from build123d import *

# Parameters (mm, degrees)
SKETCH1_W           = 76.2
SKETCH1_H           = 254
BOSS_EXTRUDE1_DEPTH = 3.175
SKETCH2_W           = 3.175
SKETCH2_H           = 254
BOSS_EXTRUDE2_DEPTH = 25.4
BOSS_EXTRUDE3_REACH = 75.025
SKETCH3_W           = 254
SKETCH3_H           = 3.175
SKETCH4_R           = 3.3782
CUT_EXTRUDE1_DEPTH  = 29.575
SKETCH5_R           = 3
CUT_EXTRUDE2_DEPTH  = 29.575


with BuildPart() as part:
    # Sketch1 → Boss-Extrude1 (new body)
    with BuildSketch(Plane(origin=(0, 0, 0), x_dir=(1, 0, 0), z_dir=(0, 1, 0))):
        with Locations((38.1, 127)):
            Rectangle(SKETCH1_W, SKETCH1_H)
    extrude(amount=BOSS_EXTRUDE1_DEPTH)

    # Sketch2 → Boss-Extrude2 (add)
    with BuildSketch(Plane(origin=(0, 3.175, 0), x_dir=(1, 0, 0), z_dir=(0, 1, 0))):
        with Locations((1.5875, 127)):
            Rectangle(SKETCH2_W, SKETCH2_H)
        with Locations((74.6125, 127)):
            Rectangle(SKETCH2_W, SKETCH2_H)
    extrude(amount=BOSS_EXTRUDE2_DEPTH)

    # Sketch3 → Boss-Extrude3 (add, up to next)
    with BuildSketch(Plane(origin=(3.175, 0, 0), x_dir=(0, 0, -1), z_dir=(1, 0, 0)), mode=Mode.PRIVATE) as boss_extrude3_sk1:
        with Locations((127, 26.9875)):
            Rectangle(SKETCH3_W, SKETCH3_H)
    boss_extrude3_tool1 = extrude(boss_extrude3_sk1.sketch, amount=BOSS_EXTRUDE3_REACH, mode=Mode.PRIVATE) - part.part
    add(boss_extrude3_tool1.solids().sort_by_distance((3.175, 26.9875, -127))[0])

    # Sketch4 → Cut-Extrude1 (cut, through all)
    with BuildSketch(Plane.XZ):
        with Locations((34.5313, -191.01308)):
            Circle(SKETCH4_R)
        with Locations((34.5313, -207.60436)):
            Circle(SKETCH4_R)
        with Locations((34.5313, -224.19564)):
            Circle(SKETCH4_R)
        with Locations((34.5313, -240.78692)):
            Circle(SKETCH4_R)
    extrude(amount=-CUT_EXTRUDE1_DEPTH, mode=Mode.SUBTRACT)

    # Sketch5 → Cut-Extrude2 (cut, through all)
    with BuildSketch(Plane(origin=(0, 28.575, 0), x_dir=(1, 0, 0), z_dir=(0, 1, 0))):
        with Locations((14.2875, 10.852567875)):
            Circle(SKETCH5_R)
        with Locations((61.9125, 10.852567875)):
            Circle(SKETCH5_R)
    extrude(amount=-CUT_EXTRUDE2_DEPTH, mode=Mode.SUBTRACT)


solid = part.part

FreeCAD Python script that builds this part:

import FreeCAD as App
import Part
import Sketcher
Q = App.Units.Quantity

doc = App.newDocument("Part")
body = doc.addObject("PartDesign::Body", "Body")

sketch1 = body.newObject("Sketcher::SketchObject", "Sketch")
sketch1.AttachmentSupport = (doc.getObject("XZ_Plane"), [""])
sketch1.MapMode = "FlatFace"
sketch1.addGeometry([
    Part.LineSegment(App.Vector(0, -254, 0), App.Vector(0, 0, 0)),
    Part.LineSegment(App.Vector(0, 0, 0), App.Vector(76, 0, 0)),
    Part.LineSegment(App.Vector(76, 0, 0), App.Vector(76, -254, 0)),
    Part.LineSegment(App.Vector(76, -254, 0), App.Vector(0, -254, 0)),
], False)
sketch1.addConstraint([
    Sketcher.Constraint("Coincident", 0, 2, 1, 1),
    Sketcher.Constraint("Coincident", 1, 2, 2, 1),
    Sketcher.Constraint("Coincident", 2, 2, 3, 1),
    Sketcher.Constraint("Coincident", 3, 2, 0, 1),
    Sketcher.Constraint("Vertical", 0),
    Sketcher.Constraint("Horizontal", 1),
    Sketcher.Constraint("Vertical", 2),
    Sketcher.Constraint("Horizontal", 3),
    Sketcher.Constraint("Coincident", 0, 2, -1, 1),
    Sketcher.Constraint("DistanceX", 1, 1, 1, 2, Q("3 in")),
    Sketcher.Constraint("DistanceY", 0, 1, 0, 2, Q("10 in")),
])
pad1 = body.newObject("PartDesign::Pad", "Pad")
pad1.Profile = sketch1
pad1.Length = Q("0.125 in")
pad1.Reversed = True

sketch2 = body.newObject("Sketcher::SketchObject", "Sketch001")
sketch2.AttachmentSupport = (doc.getObject("XZ_Plane"), [""])
sketch2.MapMode = "FlatFace"
sketch2.AttachmentOffset = App.Placement(App.Vector(0, 0, -0.125 * 25.4), App.Rotation())
sketch2.addGeometry([
    Part.LineSegment(App.Vector(0, -254, 0), App.Vector(0, 0, 0)),
    Part.LineSegment(App.Vector(0, 0, 0), App.Vector(3.2, 0, 0)),
    Part.LineSegment(App.Vector(3.2, 0, 0), App.Vector(3.2, -254, 0)),
    Part.LineSegment(App.Vector(3.2, -254, 0), App.Vector(0, -254, 0)),
    Part.LineSegment(App.Vector(73, -254, 0), App.Vector(73, 0, 0)),
    Part.LineSegment(App.Vector(73, 0, 0), App.Vector(76.2, 0, 0)),
    Part.LineSegment(App.Vector(76.2, 0, 0), App.Vector(76.2, -254, 0)),
    Part.LineSegment(App.Vector(76.2, -254, 0), App.Vector(73, -254, 0)),
], False)
sketch2.addConstraint([
    Sketcher.Constraint("Coincident", 0, 2, 1, 1),
    Sketcher.Constraint("Coincident", 1, 2, 2, 1),
    Sketcher.Constraint("Coincident", 2, 2, 3, 1),
    Sketcher.Constraint("Coincident", 3, 2, 0, 1),
    Sketcher.Constraint("Coincident", 4, 2, 5, 1),
    Sketcher.Constraint("Coincident", 5, 2, 6, 1),
    Sketcher.Constraint("Coincident", 6, 2, 7, 1),
    Sketcher.Constraint("Coincident", 7, 2, 4, 1),
    Sketcher.Constraint("Vertical", 0),
    Sketcher.Constraint("Horizontal", 1),
    Sketcher.Constraint("Vertical", 2),
    Sketcher.Constraint("Horizontal", 3),
    Sketcher.Constraint("Vertical", 4),
    Sketcher.Constraint("Horizontal", 5),
    Sketcher.Constraint("Vertical", 6),
    Sketcher.Constraint("Horizontal", 7),
    Sketcher.Constraint("Coincident", 0, 2, -1, 1),
    Sketcher.Constraint("PointOnObject", 4, 2, -1),
    Sketcher.Constraint("Horizontal", 3, 2, 6, 2),
    Sketcher.Constraint("Equal", 3, 5),
    Sketcher.Constraint("DistanceY", 0, 1, 0, 2, Q("10 in")),
    Sketcher.Constraint("DistanceX", -1, 1, 5, 2, Q("3 in")),
    Sketcher.Constraint("DistanceX", 1, 1, 1, 2, Q("0.125 in")),
])
pad2 = body.newObject("PartDesign::Pad", "Pad001")
pad2.Profile = sketch2
pad2.Length = Q("1 in")
pad2.Reversed = True

sketch3 = body.newObject("Sketcher::SketchObject", "Sketch002")
sketch3.AttachmentSupport = (doc.getObject("YZ_Plane"), [""])
sketch3.MapMode = "FlatFace"
sketch3.AttachmentOffset = App.Placement(App.Vector(0, 0, 0.125 * 25.4), App.Rotation())
sketch3.addGeometry([
    Part.LineSegment(App.Vector(28.6, 0, 0), App.Vector(25.4, 0, 0)),
    Part.LineSegment(App.Vector(25.4, 0, 0), App.Vector(25.4, -254, 0)),
    Part.LineSegment(App.Vector(25.4, -254, 0), App.Vector(28.6, -254, 0)),
    Part.LineSegment(App.Vector(28.6, -254, 0), App.Vector(28.6, 0, 0)),
], False)
sketch3.addConstraint([
    Sketcher.Constraint("Coincident", 0, 2, 1, 1),
    Sketcher.Constraint("Coincident", 1, 2, 2, 1),
    Sketcher.Constraint("Coincident", 2, 2, 3, 1),
    Sketcher.Constraint("Coincident", 3, 2, 0, 1),
    Sketcher.Constraint("Horizontal", 0),
    Sketcher.Constraint("Vertical", 1),
    Sketcher.Constraint("Horizontal", 2),
    Sketcher.Constraint("Vertical", 3),
    Sketcher.Constraint("PointOnObject", 0, 2, -1),
    Sketcher.Constraint("DistanceY", 1, 2, 1, 1, Q("10 in")),
    Sketcher.Constraint("DistanceX", -1, 1, 0, 2, Q("1 in")),
    Sketcher.Constraint("DistanceX", 0, 2, 0, 1, Q("0.125 in")),
])
pad3 = body.newObject("PartDesign::Pad", "Pad002")
pad3.Profile = sketch3
pad3.Type = "UpToFirst"

sketch4 = body.newObject("Sketcher::SketchObject", "Sketch003")
sketch4.AttachmentSupport = (doc.getObject("XZ_Plane"), [""])
sketch4.MapMode = "FlatFace"
sketch4.addGeometry([
    Part.Circle(App.Vector(34.5, -191, 0), App.Vector(0, 0, 1), 3.4),
    Part.Circle(App.Vector(34.5, -207.6, 0), App.Vector(0, 0, 1), 3.4),
    Part.Circle(App.Vector(34.5, -224.2, 0), App.Vector(0, 0, 1), 3.4),
    Part.Circle(App.Vector(34.5, -240.8, 0), App.Vector(0, 0, 1), 3.4),
], False)
sketch4.addConstraint([
    Sketcher.Constraint("Equal", 0, 1),
    Sketcher.Constraint("Equal", 1, 2),
    Sketcher.Constraint("Equal", 2, 3),
    Sketcher.Constraint("Vertical", 0, 3, 1, 3),
    Sketcher.Constraint("Vertical", 1, 3, 2, 3),
    Sketcher.Constraint("Vertical", 2, 3, 3, 3),
    Sketcher.Constraint("Diameter", 0, Q("0.266 in")),
    Sketcher.Constraint("DistanceX", -1, 1, 0, 3, Q("1.3595 in")),
    Sketcher.Constraint("DistanceY", 0, 3, -1, 1, Q("7.5202 in")),
    Sketcher.Constraint("DistanceY", 1, 3, -1, 1, Q("8.1734 in")),
    Sketcher.Constraint("DistanceY", 2, 3, -1, 1, Q("8.8266 in")),
    Sketcher.Constraint("DistanceY", 3, 3, -1, 1, Q("9.4798 in")),
])
pocket1 = body.newObject("PartDesign::Pocket", "Pocket")
pocket1.Profile = sketch4
pocket1.Type = "ThroughAll"

sketch5 = body.newObject("Sketcher::SketchObject", "Sketch004")
sketch5.AttachmentSupport = (doc.getObject("XZ_Plane"), [""])
sketch5.MapMode = "FlatFace"
sketch5.AttachmentOffset = App.Placement(App.Vector(0, 0, -1.125 * 25.4), App.Rotation())
sketch5.addGeometry([
    Part.Circle(App.Vector(14.3, -10.9, 0), App.Vector(0, 0, 1), 3),
    Part.Circle(App.Vector(61.9, -10.9, 0), App.Vector(0, 0, 1), 3),
], False)
sketch5.addConstraint([
    Sketcher.Constraint("Equal", 0, 1),
    Sketcher.Constraint("Horizontal", 0, 3, 1, 3),
    Sketcher.Constraint("Diameter", 0, 6.0),
    Sketcher.Constraint("DistanceX", -1, 1, 0, 3, Q("0.5625 in")),
    Sketcher.Constraint("DistanceX", -1, 1, 1, 3, Q("2.4375 in")),
    Sketcher.Constraint("DistanceY", 0, 3, -1, 1, 10.852568),
])
pocket2 = body.newObject("PartDesign::Pocket", "Pocket001")
pocket2.Profile = sketch5
pocket2.Type = "ThroughAll"
pocket2.Reversed = True

doc.recompute()
